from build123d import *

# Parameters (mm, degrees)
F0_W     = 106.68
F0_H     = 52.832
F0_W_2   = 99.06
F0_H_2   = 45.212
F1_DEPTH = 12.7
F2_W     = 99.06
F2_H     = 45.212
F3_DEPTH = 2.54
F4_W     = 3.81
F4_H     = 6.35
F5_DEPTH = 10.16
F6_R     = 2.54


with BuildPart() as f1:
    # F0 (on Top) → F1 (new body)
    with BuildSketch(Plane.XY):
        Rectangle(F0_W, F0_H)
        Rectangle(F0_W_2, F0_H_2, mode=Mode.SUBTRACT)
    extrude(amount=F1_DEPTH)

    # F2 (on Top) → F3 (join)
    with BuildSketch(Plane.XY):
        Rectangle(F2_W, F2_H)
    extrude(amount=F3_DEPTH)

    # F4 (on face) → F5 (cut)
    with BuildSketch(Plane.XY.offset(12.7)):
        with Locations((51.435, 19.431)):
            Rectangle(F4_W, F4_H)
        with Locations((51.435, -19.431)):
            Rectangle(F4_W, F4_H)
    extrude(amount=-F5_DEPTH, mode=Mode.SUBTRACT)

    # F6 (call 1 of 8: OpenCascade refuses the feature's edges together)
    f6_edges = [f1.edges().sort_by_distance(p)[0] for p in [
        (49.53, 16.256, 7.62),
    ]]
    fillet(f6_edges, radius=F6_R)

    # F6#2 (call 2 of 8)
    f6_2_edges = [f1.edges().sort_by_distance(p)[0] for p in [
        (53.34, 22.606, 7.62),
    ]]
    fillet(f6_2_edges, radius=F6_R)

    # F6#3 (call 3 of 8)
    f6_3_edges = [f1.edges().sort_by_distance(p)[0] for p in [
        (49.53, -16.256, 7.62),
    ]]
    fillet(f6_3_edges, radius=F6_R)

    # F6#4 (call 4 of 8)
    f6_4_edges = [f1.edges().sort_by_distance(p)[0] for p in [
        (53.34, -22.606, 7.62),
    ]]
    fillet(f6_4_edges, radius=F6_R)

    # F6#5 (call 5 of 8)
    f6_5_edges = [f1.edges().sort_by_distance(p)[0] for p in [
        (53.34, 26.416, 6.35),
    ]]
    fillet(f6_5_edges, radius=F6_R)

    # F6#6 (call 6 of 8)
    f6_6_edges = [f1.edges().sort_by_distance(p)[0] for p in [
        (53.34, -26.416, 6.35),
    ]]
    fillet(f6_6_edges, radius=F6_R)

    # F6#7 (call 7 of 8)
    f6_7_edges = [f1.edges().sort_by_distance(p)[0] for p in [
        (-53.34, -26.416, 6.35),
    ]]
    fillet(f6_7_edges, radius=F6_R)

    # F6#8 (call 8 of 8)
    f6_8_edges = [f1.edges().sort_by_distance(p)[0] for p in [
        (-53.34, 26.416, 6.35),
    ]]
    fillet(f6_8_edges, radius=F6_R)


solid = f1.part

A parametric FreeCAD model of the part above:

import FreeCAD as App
import Part
import Sketcher
from FreeCAD import Vector
Q = App.Units.Quantity


def edges_at(feature, points):
    """Names of the edges that pass closest to the given points."""
    edges = feature.Shape.Edges
    near = lambda p: min(range(len(edges)), key=lambda i: edges[i].distToShape(Part.Vertex(*p))[0])
    return sorted({f"Edge{near(p) + 1}" for p in points})


def add_polygon(sketch, points):
    """Adds a closed chain of lines whose ends are joined by coincident constraints."""
    first, n = sketch.GeometryCount, len(points)
    for a, b in zip(points, points[1:] + points[:1]):
        sketch.addGeometry(Part.LineSegment(App.Vector(*a, 0), App.Vector(*b, 0)), False)
    for i in range(n):
        sketch.addConstraint(Sketcher.Constraint("Coincident", first + i, 2, first + (i + 1) % n, 1))

doc = App.newDocument("Part")
params = doc.addObject("Spreadsheet::Sheet", "Params")
for row, (alias, value) in enumerate([
    ("sketch1_width", "4.2 in"),
    ("sketch1_width2", "3.9 in"),
    ("sketch1_height", "2.08 in"),
    ("sketch1_height2", "1.78 in"),
    ("pad1_length", "0.5 in"),
    ("sketch2_width", "3.9 in"),
    ("sketch2_height", "1.78 in"),
    ("pad2_length", "0.1 in"),
    ("sketch3_width", "0.15 in"),
    ("sketch3_height", "0.25 in"),
    ("pocket1_length", "0.4 in"),
    ("fillet_radius", "0.1 in"),
    ("fillet2_radius", "0.1 in"),
    ("fillet3_radius", "0.1 in"),
    ("fillet4_radius", "0.1 in"),
    ("fillet5_radius", "0.1 in"),
    ("fillet6_radius", "0.1 in"),
    ("fillet7_radius", "0.1 in"),
    ("fillet8_radius", "0.1 in"),
], start=1):
    params.set(f"A{row}", alias)
    params.set(f"B{row}", "=" + value)
    params.setAlias(f"B{row}", alias)

body = doc.addObject("PartDesign::Body", "Body")

# Sketch on XY plane
sketch1 = body.newObject("Sketcher::SketchObject", "Sketch")
sketch1.AttachmentSupport = (doc.getObject("XY_Plane"), [""])
sketch1.MapMode = "FlatFace"
add_polygon(sketch1, [(-53, 26), (-53, -26), (53, -26), (53, 26)])  # lines 0-3
add_polygon(sketch1, [(50, -23), (-50, -23), (-50, 23), (50, 23)])  # lines 4-7
sketch1.addConstraint([
    Sketcher.Constraint("Vertical", 0),
    Sketcher.Constraint("Horizontal", 1),
    Sketcher.Constraint("Vertical", 2),
    Sketcher.Constraint("Horizontal", 3),
    Sketcher.Constraint("Horizontal", 4),
    Sketcher.Constraint("Vertical", 5),
    Sketcher.Constraint("Horizontal", 6),
    Sketcher.Constraint("Vertical", 7),
    Sketcher.Constraint("Symmetric", 0, 2, 2, 2, -1, 1),
    Sketcher.Constraint("Symmetric", 4, 2, 6, 2, -1, 1),
    Sketcher.Constraint("DistanceX", 1, 1, 1, 2, Q("4.2 in")),
    Sketcher.Constraint("DistanceX", 4, 2, 4, 1, Q("3.9 in")),
    Sketcher.Constraint("DistanceY", 0, 2, 0, 1, Q("2.08 in")),
    Sketcher.Constraint("DistanceY", 5, 1, 5, 2, Q("1.78 in")),
])
sketch1.setExpression("Constraints[18]", "Params.sketch1_width")
sketch1.setExpression("Constraints[19]", "Params.sketch1_width2")
sketch1.setExpression("Constraints[20]", "Params.sketch1_height")
sketch1.setExpression("Constraints[21]", "Params.sketch1_height2")
pad1 = body.newObject("PartDesign::Pad", "Pad")
pad1.Profile = sketch1
pad1.setExpression("Length", "Params.pad1_length")

# Sketch on XY plane
sketch2 = body.newObject("Sketcher::SketchObject", "Sketch001")
sketch2.AttachmentSupport = (doc.getObject("XY_Plane"), [""])
sketch2.MapMode = "FlatFace"
add_polygon(sketch2, [(-50, 23), (-50, -23), (50, -23), (50, 23)])  # lines 0-3
sketch2.addConstraint([
    Sketcher.Constraint("Vertical", 0),
    Sketcher.Constraint("Horizontal", 1),
    Sketcher.Constraint("Vertical", 2),
    Sketcher.Constraint("Horizontal", 3),
    Sketcher.Constraint("Symmetric", 0, 2, 2, 2, -1, 1),
    Sketcher.Constraint("DistanceX", 1, 1, 1, 2, Q("3.9 in")),
    Sketcher.Constraint("DistanceY", 0, 2, 0, 1, Q("1.78 in")),
])
sketch2.setExpression("Constraints[9]", "Params.sketch2_width")
sketch2.setExpression("Constraints[10]", "Params.sketch2_height")
pad2 = body.newObject("PartDesign::Pad", "Pad001")
pad2.Profile = sketch2
pad2.setExpression("Length", "Params.pad2_length")

# Sketch on XY plane
sketch3 = body.newObject("Sketcher::SketchObject", "Sketch002")
sketch3.AttachmentSupport = (doc.getObject("XY_Plane"), [""])
sketch3.MapMode = "FlatFace"
sketch3.AttachmentOffset = App.Placement(Vector(0, 0, 0.5 * 25.4), App.Rotation())
add_polygon(sketch3, [(49.5, 22.6), (49.5, 16.3), (53.3, 16.3), (53.3, 22.6)])  # lines 0-3
add_polygon(sketch3, [(49.5, -16.3), (49.5, -22.6), (53.3, -22.6), (53.3, -16.3)])  # lines 4-7
sketch3.addConstraint([
    Sketcher.Constraint("Vertical", 0),
    Sketcher.Constraint("Horizontal", 1),
    Sketcher.Constraint("Vertical", 2),
    Sketcher.Constraint("Horizontal", 3),
    Sketcher.Constraint("Vertical", 4),
    Sketcher.Constraint("Horizontal", 5),
    Sketcher.Constraint("Vertical", 6),
    Sketcher.Constraint("Horizontal", 7),
    Sketcher.Constraint("Symmetric", 3, 2, 4, 2, -1),
    Sketcher.Constraint("Symmetric", 1, 2, 6, 2, -1),
    Sketcher.Constraint("DistanceX", 1, 1, 1, 2, Q("0.15 in")),
    Sketcher.Constraint("DistanceY", 0, 2, 0, 1, Q("0.25 in")),
    Sketcher.Constraint("DistanceX", -1, 1, 1, 2, Q("2.1 in")),
    Sketcher.Constraint("DistanceY", -1, 1, 0, 2, Q("0.64 in")),
])
sketch3.setExpression("Constraints[18]", "Params.sketch3_width")
sketch3.setExpression("Constraints[19]", "Params.sketch3_height")
pocket1 = body.newObject("PartDesign::Pocket", "Pocket")
pocket1.Profile = sketch3
pocket1.setExpression("Length", "Params.pocket1_length")
doc.recompute()

fillet = body.newObject("PartDesign::Fillet", "Fillet")
fillet.Base = (pocket1, edges_at(pocket1, [(49.53, 16.256, 7.62)]))
fillet.setExpression("Radius", "Params.fillet_radius")
doc.recompute()

fillet2 = body.newObject("PartDesign::Fillet", "Fillet001")
fillet2.Base = (fillet, edges_at(fillet, [(53.34, 22.606, 7.62)]))
fillet2.setExpression("Radius", "Params.fillet2_radius")
doc.recompute()

fillet3 = body.newObject("PartDesign::Fillet", "Fillet002")
fillet3.Base = (fillet2, edges_at(fillet2, [(49.53, -16.256, 7.62)]))
fillet3.setExpression("Radius", "Params.fillet3_radius")
doc.recompute()

fillet4 = body.newObject("PartDesign::Fillet", "Fillet003")
fillet4.Base = (fillet3, edges_at(fillet3, [(53.34, -22.606, 7.62)]))
fillet4.setExpression("Radius", "Params.fillet4_radius")
doc.recompute()

fillet5 = body.newObject("PartDesign::Fillet", "Fillet004")
fillet5.Base = (fillet4, edges_at(fillet4, [(53.34, 26.416, 6.35)]))
fillet5.setExpression("Radius", "Params.fillet5_radius")
doc.recompute()

fillet6 = body.newObject("PartDesign::Fillet", "Fillet005")
fillet6.Base = (fillet5, edges_at(fillet5, [(53.34, -26.416, 6.35)]))
fillet6.setExpression("Radius", "Params.fillet6_radius")
doc.recompute()

fillet7 = body.newObject("PartDesign::Fillet", "Fillet006")
fillet7.Base = (fillet6, edges_at(fillet6, [(-53.34, -26.416, 6.35)]))
fillet7.setExpression("Radius", "Params.fillet7_radius")
doc.recompute()

fillet8 = body.newObject("PartDesign::Fillet", "Fillet007")
fillet8.Base = (fillet7, edges_at(fillet7, [(-53.34, 26.416, 6.35)]))
fillet8.setExpression("Radius", "Params.fillet8_radius")

doc.recompute()
